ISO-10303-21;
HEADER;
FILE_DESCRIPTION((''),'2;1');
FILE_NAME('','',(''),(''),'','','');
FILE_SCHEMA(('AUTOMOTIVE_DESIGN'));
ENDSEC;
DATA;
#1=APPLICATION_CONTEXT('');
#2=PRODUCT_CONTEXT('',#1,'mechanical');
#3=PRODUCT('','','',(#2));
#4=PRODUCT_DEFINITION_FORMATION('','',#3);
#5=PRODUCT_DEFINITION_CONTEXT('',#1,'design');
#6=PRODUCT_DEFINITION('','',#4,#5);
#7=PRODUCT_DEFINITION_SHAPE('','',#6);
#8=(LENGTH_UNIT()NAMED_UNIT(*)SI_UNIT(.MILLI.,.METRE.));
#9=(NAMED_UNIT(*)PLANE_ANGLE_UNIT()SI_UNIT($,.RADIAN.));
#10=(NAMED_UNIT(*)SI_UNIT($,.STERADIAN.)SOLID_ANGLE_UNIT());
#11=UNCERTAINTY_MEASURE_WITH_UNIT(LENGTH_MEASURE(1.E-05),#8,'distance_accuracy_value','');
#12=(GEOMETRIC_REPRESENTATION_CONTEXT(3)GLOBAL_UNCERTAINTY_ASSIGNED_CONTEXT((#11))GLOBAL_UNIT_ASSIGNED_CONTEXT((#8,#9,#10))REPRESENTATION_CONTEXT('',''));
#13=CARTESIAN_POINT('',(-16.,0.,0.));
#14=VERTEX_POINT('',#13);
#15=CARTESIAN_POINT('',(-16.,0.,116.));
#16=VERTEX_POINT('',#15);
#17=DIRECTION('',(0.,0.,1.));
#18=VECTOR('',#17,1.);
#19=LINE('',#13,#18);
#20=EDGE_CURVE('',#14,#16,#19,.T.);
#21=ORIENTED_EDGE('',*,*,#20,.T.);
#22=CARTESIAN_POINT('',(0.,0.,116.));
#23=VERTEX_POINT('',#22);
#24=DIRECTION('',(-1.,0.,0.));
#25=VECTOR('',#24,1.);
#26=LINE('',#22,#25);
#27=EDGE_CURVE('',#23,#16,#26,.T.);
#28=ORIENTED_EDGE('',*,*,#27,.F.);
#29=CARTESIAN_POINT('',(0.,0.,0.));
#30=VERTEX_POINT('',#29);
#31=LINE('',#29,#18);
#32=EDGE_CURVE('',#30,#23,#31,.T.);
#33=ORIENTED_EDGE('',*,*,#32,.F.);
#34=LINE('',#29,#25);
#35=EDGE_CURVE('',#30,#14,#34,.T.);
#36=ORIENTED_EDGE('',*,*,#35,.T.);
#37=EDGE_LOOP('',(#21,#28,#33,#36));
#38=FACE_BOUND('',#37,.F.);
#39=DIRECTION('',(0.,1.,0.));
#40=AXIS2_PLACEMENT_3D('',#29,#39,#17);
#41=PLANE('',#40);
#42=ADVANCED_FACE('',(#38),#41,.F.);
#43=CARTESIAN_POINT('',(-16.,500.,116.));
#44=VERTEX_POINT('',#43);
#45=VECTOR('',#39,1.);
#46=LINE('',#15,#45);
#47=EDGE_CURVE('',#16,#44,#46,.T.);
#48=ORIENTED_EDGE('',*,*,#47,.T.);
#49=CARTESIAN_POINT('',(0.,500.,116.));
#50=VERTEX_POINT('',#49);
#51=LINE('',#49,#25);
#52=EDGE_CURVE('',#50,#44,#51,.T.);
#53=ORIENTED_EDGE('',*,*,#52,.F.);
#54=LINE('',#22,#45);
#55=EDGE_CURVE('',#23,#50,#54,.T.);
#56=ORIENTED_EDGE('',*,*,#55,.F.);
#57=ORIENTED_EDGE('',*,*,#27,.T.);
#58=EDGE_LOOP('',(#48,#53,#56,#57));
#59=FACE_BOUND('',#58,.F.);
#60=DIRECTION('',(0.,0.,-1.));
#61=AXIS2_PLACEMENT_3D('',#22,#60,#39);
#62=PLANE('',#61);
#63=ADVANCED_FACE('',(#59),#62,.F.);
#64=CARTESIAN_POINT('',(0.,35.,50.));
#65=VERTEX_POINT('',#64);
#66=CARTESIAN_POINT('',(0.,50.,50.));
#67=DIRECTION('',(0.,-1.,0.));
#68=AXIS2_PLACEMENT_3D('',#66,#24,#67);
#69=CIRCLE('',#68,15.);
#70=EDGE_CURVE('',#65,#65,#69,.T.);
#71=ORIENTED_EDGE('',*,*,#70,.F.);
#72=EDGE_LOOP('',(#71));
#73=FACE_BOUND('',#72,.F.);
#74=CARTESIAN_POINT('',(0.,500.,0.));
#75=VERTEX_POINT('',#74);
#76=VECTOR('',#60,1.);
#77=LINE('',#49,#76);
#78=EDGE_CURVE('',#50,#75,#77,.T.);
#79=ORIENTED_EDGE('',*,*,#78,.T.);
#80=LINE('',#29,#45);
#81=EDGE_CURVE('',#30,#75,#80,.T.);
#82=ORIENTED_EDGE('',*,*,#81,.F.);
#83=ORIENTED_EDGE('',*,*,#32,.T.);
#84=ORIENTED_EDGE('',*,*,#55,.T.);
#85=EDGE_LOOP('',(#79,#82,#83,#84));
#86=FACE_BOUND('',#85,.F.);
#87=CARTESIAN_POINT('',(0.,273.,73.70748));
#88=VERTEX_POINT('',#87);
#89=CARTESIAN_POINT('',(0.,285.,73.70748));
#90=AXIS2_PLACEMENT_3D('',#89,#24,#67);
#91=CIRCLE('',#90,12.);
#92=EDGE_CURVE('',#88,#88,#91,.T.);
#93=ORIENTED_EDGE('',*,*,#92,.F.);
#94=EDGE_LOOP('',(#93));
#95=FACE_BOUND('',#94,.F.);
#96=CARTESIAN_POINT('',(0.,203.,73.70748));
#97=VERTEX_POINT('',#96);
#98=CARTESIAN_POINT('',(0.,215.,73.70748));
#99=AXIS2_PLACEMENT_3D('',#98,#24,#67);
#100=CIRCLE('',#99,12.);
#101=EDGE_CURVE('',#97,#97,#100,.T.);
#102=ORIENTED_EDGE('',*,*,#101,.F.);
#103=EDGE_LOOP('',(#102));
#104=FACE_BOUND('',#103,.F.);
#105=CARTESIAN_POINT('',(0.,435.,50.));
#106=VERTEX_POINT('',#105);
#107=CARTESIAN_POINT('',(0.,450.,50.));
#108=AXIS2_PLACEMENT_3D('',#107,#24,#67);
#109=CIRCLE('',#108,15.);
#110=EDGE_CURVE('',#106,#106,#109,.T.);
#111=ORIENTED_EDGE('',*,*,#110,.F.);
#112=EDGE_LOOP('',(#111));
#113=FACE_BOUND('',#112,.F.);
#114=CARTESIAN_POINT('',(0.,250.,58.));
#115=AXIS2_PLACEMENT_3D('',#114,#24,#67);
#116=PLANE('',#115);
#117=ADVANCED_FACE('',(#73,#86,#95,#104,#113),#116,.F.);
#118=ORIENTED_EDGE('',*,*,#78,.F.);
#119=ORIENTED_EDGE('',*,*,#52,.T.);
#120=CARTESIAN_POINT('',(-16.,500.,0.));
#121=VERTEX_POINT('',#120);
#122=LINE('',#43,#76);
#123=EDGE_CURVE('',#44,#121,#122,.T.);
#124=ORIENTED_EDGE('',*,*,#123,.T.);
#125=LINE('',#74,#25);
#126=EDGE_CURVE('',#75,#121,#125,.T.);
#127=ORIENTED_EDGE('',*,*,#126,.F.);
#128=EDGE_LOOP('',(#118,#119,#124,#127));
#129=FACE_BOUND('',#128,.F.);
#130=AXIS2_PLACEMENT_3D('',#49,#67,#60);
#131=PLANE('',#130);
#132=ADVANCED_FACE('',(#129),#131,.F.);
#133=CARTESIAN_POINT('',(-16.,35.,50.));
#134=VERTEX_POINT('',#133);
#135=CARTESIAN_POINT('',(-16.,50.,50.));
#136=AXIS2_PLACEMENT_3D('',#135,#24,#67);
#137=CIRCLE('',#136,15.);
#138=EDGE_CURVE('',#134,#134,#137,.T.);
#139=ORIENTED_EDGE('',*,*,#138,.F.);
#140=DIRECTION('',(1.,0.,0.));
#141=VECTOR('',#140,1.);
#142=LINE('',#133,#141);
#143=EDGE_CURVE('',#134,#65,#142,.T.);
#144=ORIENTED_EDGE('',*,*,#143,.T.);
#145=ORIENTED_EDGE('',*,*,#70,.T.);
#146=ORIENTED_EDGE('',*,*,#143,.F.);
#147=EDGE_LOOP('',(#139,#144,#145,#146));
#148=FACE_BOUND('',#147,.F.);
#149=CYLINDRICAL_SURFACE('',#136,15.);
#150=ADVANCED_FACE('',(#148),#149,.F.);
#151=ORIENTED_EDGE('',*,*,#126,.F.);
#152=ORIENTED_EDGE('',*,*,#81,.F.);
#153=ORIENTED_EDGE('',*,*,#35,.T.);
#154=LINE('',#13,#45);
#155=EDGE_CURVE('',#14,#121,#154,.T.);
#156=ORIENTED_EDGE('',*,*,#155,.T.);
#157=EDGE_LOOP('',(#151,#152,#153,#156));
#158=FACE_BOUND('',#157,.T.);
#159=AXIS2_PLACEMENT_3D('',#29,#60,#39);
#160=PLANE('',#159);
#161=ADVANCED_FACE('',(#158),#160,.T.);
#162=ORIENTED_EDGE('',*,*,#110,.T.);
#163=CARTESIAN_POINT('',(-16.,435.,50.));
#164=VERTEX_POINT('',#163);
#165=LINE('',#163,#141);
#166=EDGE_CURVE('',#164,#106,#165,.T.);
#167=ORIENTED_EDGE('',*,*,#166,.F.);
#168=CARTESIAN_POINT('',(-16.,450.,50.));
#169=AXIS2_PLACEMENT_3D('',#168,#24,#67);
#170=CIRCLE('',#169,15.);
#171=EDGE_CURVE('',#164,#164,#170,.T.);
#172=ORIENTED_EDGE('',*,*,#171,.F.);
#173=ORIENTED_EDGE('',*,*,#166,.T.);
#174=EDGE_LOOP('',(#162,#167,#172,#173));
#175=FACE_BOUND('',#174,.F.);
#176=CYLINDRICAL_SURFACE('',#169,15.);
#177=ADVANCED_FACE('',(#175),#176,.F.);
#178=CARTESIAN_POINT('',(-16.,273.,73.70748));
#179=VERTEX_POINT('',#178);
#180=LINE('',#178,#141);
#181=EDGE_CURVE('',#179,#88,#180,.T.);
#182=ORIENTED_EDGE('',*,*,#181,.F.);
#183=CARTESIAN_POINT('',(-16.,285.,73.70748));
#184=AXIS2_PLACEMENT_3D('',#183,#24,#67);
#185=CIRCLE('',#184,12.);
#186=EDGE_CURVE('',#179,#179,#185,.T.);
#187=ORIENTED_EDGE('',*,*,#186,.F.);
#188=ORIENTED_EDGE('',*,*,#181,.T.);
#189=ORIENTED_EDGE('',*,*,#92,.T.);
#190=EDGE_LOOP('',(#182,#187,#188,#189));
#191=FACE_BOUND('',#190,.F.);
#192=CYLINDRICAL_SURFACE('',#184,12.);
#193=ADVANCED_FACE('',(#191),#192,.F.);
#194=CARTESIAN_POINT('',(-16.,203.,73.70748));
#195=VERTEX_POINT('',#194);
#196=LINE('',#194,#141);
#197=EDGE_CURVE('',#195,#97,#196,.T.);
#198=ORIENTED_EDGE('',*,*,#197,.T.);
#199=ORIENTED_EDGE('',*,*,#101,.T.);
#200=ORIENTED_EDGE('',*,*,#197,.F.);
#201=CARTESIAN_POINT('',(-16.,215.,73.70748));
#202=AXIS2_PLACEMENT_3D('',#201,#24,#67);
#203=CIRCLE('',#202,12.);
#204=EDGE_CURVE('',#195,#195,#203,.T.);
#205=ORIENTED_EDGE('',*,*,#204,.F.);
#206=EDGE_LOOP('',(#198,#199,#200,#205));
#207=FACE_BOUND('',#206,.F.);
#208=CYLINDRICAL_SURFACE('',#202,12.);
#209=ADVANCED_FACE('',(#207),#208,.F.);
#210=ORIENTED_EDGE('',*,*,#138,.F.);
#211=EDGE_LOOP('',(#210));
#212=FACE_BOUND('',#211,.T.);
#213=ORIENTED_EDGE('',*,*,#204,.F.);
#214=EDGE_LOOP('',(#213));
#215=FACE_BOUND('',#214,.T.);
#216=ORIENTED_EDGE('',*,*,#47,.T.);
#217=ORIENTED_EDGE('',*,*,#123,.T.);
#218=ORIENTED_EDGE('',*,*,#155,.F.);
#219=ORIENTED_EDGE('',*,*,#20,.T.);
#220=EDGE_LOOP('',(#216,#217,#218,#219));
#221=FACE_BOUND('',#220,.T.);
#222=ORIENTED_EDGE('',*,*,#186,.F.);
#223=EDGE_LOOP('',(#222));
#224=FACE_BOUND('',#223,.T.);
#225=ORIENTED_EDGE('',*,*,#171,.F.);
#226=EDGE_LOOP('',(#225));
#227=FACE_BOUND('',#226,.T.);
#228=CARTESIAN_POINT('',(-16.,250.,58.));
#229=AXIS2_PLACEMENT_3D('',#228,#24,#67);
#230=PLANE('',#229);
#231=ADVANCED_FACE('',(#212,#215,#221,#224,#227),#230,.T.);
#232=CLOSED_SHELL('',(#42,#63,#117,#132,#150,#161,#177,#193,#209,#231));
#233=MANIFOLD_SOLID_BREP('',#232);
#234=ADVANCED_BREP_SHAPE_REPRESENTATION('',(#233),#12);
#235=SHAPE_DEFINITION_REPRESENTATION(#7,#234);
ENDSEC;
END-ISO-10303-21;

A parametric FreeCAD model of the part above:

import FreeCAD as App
import Part
import Sketcher
from FreeCAD import Vector


def add_polygon(sketch, points):
    """Adds a closed chain of lines whose ends are joined by coincident constraints."""
    first, n = sketch.GeometryCount, len(points)
    for a, b in zip(points, points[1:] + points[:1]):
        sketch.addGeometry(Part.LineSegment(App.Vector(*a, 0), App.Vector(*b, 0)), False)
    for i in range(n):
        sketch.addConstraint(Sketcher.Constraint("Coincident", first + i, 2, first + (i + 1) % n, 1))

doc = App.newDocument("Part")
params = doc.addObject("Spreadsheet::Sheet", "Params")
for row, (alias, value) in enumerate([
    ("sketch1_width", "500 mm"),
    ("sketch1_height", "116 mm"),
    ("pad1_length", "16 mm"),
    ("sketch2_diameter", "24 mm"),
    ("sketch2_diameter2", "30 mm"),
    ("pocket1_length", "20 mm"),
], start=1):
    params.set(f"A{row}", alias)
    params.set(f"B{row}", "=" + value)
    params.setAlias(f"B{row}", alias)

body = doc.addObject("PartDesign::Body", "Body")

# Sketch on YZ plane
sketch1 = body.newObject("Sketcher::SketchObject", "Sketch")
sketch1.AttachmentSupport = (doc.getObject("YZ_Plane"), [""])
sketch1.MapMode = "FlatFace"
add_polygon(sketch1, [(0, 116), (0, 0), (500, 0), (500, 116)])  # lines 0-3
sketch1.addConstraint([
    Sketcher.Constraint("Vertical", 0),
    Sketcher.Constraint("Horizontal", 1),
    Sketcher.Constraint("Vertical", 2),
    Sketcher.Constraint("Horizontal", 3),
    Sketcher.Constraint("Coincident", 0, 2, -1, 1),
    Sketcher.Constraint("DistanceX", 1, 1, 1, 2, 500.0),
    Sketcher.Constraint("DistanceY", 0, 2, 0, 1, 116.0),
])
sketch1.setExpression("Constraints[9]", "Params.sketch1_width")
sketch1.setExpression("Constraints[10]", "Params.sketch1_height")
pad1 = body.newObject("PartDesign::Pad", "Pad")
pad1.Profile = sketch1
pad1.setExpression("Length", "Params.pad1_length")
pad1.Reversed = True

# Sketch on YZ plane
sketch2 = body.newObject("Sketcher::SketchObject", "Sketch001")
sketch2.AttachmentSupport = (doc.getObject("YZ_Plane"), [""])
sketch2.MapMode = "FlatFace"
sketch2.AttachmentOffset = App.Placement(Vector(0, 0, -16), App.Rotation())
sketch2.addGeometry([
    Part.Circle(Vector(215, 73.70748, 0), Vector(0, 0, 1), 12),
    Part.Circle(Vector(285, 73.70748, 0), Vector(0, 0, 1), 12),
    Part.Circle(Vector(450, 50, 0), Vector(0, 0, 1), 15),
    Part.Circle(Vector(50, 50, 0), Vector(0, 0, 1), 15),
], False)
sketch2.addConstraint([
    Sketcher.Constraint("Equal", 0, 1),
    Sketcher.Constraint("Equal", 2, 3),
    Sketcher.Constraint("Horizontal", 0, 3, 1, 3),
    Sketcher.Constraint("Horizontal", 2, 3, 3, 3),
    Sketcher.Constraint("Diameter", 0, 24.0),
    Sketcher.Constraint("Diameter", 2, 30.0),
    Sketcher.Constraint("DistanceX", -1, 1, 0, 3, 215.0),
    Sketcher.Constraint("DistanceX", -1, 1, 1, 3, 285.0),
    Sketcher.Constraint("DistanceX", -1, 1, 2, 3, 450.0),
    Sketcher.Constraint("DistanceY", -1, 1, 2, 3, 50.0),
    Sketcher.Constraint("DistanceX", -1, 1, 3, 3, 50.0),
    Sketcher.Constraint("DistanceY", -1, 1, 0, 3, 73.70748),
])
sketch2.setExpression("Constraints[4]", "Params.sketch2_diameter")
sketch2.setExpression("Constraints[5]", "Params.sketch2_diameter2")
pocket1 = body.newObject("PartDesign::Pocket", "Pocket")
pocket1.Profile = sketch2
pocket1.setExpression("Length", "Params.pocket1_length")
pocket1.Reversed = True

doc.recompute()
